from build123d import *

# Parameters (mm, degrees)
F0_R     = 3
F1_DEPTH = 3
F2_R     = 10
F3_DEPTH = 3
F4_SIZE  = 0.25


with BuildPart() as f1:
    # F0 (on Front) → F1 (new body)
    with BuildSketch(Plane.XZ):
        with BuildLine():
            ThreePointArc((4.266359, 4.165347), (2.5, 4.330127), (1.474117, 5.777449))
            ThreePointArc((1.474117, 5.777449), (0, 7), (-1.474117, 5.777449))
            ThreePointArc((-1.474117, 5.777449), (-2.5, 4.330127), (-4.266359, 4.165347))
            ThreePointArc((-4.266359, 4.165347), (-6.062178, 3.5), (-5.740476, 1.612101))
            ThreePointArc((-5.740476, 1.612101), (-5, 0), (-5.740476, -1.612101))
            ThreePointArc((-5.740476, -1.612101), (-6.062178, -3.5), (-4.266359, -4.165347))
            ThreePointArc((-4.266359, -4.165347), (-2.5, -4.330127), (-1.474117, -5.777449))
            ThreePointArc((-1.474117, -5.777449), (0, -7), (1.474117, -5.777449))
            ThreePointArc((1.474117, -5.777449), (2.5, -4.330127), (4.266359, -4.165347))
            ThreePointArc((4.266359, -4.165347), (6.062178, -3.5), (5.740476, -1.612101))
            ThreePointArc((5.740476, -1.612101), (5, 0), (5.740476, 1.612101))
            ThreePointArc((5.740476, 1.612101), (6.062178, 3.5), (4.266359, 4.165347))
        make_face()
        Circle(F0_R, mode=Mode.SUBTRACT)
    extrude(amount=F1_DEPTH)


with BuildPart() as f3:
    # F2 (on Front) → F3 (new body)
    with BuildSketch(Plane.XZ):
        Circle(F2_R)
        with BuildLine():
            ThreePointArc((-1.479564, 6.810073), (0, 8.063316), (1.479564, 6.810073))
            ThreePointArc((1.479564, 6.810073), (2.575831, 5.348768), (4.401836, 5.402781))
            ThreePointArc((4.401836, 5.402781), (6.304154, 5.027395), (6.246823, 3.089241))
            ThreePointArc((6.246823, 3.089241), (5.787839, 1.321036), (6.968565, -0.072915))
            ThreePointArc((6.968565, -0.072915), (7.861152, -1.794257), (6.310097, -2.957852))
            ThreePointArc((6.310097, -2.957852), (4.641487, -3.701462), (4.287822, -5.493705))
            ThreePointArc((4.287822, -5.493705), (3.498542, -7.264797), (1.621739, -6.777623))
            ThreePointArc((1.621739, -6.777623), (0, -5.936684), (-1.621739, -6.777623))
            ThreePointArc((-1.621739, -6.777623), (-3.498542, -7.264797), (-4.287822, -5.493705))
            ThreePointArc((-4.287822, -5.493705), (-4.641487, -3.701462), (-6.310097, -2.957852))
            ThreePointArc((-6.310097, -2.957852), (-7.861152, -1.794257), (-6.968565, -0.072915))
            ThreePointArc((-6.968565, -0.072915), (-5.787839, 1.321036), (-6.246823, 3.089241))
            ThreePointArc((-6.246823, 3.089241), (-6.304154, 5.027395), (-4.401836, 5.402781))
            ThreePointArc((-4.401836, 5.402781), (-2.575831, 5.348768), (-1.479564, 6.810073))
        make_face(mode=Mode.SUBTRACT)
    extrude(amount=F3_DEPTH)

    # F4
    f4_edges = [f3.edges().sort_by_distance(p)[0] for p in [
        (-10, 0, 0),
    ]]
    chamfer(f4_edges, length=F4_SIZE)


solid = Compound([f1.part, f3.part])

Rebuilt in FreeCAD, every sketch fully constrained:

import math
import FreeCAD as App
import Part
import Sketcher
from FreeCAD import Vector
Q = App.Units.Quantity


def edges_at(feature, points):
    """Names of the edges that pass closest to the given points."""
    edges = feature.Shape.Edges
    near = lambda p: min(range(len(edges)), key=lambda i: edges[i].distToShape(Part.Vertex(*p))[0])
    return sorted({f"Edge{near(p) + 1}" for p in points})

doc = App.newDocument("Part")
body = doc.addObject("PartDesign::Body", "Body")

# Sketch on XZ plane
sketch1 = body.newObject("Sketcher::SketchObject", "Sketch")
sketch1.AttachmentSupport = (doc.getObject("XZ_Plane"), [""])
sketch1.MapMode = "FlatFace"
sketch1.addGeometry([
    Part.ArcOfCircle(Part.Circle(Vector(3.6, 6.2, 0), Vector(0, 0, 1), 2.1), math.radians(-169), math.radians(-71)),  # 0
    Part.ArcOfCircle(Part.Circle(Vector(0, 5.5, 0), Vector(0, 0, 1), 1.5), math.radians(11), math.radians(169)),  # 1
    Part.ArcOfCircle(Part.Circle(Vector(-3.6, 6.2, 0), Vector(0, 0, 1), 2.1), math.radians(-109), math.radians(-11)),  # 2
    Part.ArcOfCircle(Part.Circle(Vector(-4.8, 2.7, 0), Vector(0, 0, 1), 1.5), math.radians(71), math.radians(229)),  # 3
    Part.ArcOfCircle(Part.Circle(Vector(-7.1, 0, 0), Vector(0, 0, 1), 2.1), math.radians(-49), math.radians(49)),  # 4
    Part.ArcOfCircle(Part.Circle(Vector(-4.8, -2.7, 0), Vector(0, 0, 1), 1.5), math.radians(131), math.radians(289)),  # 5
    Part.ArcOfCircle(Part.Circle(Vector(-3.6, -6.2, 0), Vector(0, 0, 1), 2.1), math.radians(11), math.radians(109)),  # 6
    Part.ArcOfCircle(Part.Circle(Vector(0, -5.5, 0), Vector(0, 0, 1), 1.5), math.radians(-169), math.radians(-11)),  # 7
    Part.ArcOfCircle(Part.Circle(Vector(3.6, -6.2, 0), Vector(0, 0, 1), 2.1), math.radians(71), math.radians(169)),  # 8
    Part.ArcOfCircle(Part.Circle(Vector(4.8, -2.7, 0), Vector(0, 0, 1), 1.5), math.radians(-109), math.radians(49)),  # 9
    Part.ArcOfCircle(Part.Circle(Vector(7.1, 0, 0), Vector(0, 0, 1), 2.1), math.radians(131), math.radians(229)),  # 10
    Part.ArcOfCircle(Part.Circle(Vector(4.8, 2.7, 0), Vector(0, 0, 1), 1.5), math.radians(-49), math.radians(109)),  # 11
    Part.Circle(Vector(0, 0, 0), Vector(0, 0, 1), 3),  # 12
], False)
sketch1.addConstraint([
    Sketcher.Constraint("Tangent", 0, 1, 1, 1),
    Sketcher.Constraint("Tangent", 1, 2, 2, 2),
    Sketcher.Constraint("Tangent", 2, 1, 3, 1),
    Sketcher.Constraint("Tangent", 3, 2, 4, 2),
    Sketcher.Constraint("Tangent", 4, 1, 5, 1),
    Sketcher.Constraint("Tangent", 5, 2, 6, 2),
    Sketcher.Constraint("Tangent", 6, 1, 7, 1),
    Sketcher.Constraint("Tangent", 7, 2, 8, 2),
    Sketcher.Constraint("Tangent", 8, 1, 9, 1),
    Sketcher.Constraint("Tangent", 9, 2, 10, 2),
    Sketcher.Constraint("Tangent", 10, 1, 11, 1),
    Sketcher.Constraint("Tangent", 11, 2, 0, 2),
    Sketcher.Constraint("Coincident", 12, 3, -1, 1),
    Sketcher.Constraint("Equal", 0, 2),
    Sketcher.Constraint("Equal", 1, 3),
    Sketcher.Constraint("Equal", 2, 4),
    Sketcher.Constraint("Equal", 3, 5),
    Sketcher.Constraint("Equal", 4, 6),
    Sketcher.Constraint("Equal", 5, 7),
    Sketcher.Constraint("Equal", 6, 8),
    Sketcher.Constraint("Equal", 7, 9),
    Sketcher.Constraint("Equal", 8, 10),
    Sketcher.Constraint("Equal", 9, 11),
    Sketcher.Constraint("Symmetric", 0, 3, 6, 3, -1, 1),
    Sketcher.Constraint("Symmetric", 2, 3, 8, 3, -1, 1),
    Sketcher.Constraint("Symmetric", 4, 3, 10, 3, -1, 1),
    Sketcher.Constraint("Symmetric", 0, 3, 2, 3, -2),
    Sketcher.Constraint("PointOnObject", 4, 3, -1),
    Sketcher.Constraint("Diameter", 12, Q("6 mm")),
    Sketcher.Constraint("Radius", 1, Q("1.5 mm")),
    Sketcher.Constraint("DistanceY", 7, 3, 1, 3, Q("11.000001 mm")),
    Sketcher.Constraint("DistanceY", 5, 3, 3, 3, Q("5.5 mm")),
    Sketcher.Constraint("Radius", 0, Q("2.125104 mm")),
    Sketcher.Constraint("DistanceY", -1, 1, 0, 3, Q("6.170521 mm")),
])
pad1 = body.newObject("PartDesign::Pad", "Pad")
pad1.Profile = sketch1
pad1.Length = 3
body2 = doc.addObject("PartDesign::Body", "Body001")

# Sketch on XZ plane
sketch2 = body2.newObject("Sketcher::SketchObject", "Sketch001")
sketch2.AttachmentSupport = (doc.getObject("XZ_Plane001"), [""])
sketch2.MapMode = "FlatFace"
sketch2.addGeometry([
    Part.Circle(Vector(0, 0, 0), Vector(0, 0, 1), 10),  # 0
    Part.ArcOfCircle(Part.Circle(Vector(-3.4, 7.1, 0), Vector(0, 0, 1), 2), math.radians(-119), math.radians(-9)),  # 1
    Part.ArcOfCircle(Part.Circle(Vector(0, 6.6, 0), Vector(0, 0, 1), 1.5), math.radians(9), math.radians(171)),  # 2
    Part.ArcOfCircle(Part.Circle(Vector(3.4, 7.1, 0), Vector(0, 0, 1), 2), math.radians(-171), math.radians(-61)),  # 3
    Part.ArcOfCircle(Part.Circle(Vector(5.1, 4.1, 0), Vector(0, 0, 1), 1.5), math.radians(-42), math.radians(119)),  # 4
    Part.ArcOfCircle(Part.Circle(Vector(7.7, 1.8, 0), Vector(0, 0, 1), 2), math.radians(138), math.radians(248)),  # 5
    Part.ArcOfCircle(Part.Circle(Vector(6.4, -1.5, 0), Vector(0, 0, 1), 1.5), math.radians(-93), math.radians(68)),  # 6
    Part.ArcOfCircle(Part.Circle(Vector(6.2, -4.9, 0), Vector(0, 0, 1), 2), math.radians(87), math.radians(196)),  # 7
    Part.ArcOfCircle(Part.Circle(Vector(2.8, -5.9, 0), Vector(0, 0, 1), 1.5), math.radians(-145), math.radians(16)),  # 8
    Part.ArcOfCircle(Part.Circle(Vector(0, -7.9, 0), Vector(0, 0, 1), 2), math.radians(35), math.radians(145)),  # 9
    Part.ArcOfCircle(Part.Circle(Vector(-2.8, -5.9, 0), Vector(0, 0, 1), 1.5), math.radians(164), math.radians(325)),  # 10
    Part.ArcOfCircle(Part.Circle(Vector(-6.2, -4.9, 0), Vector(0, 0, 1), 2), math.radians(-16), math.radians(93)),  # 11
    Part.ArcOfCircle(Part.Circle(Vector(-6.4, -1.5, 0), Vector(0, 0, 1), 1.5), math.radians(112), math.radians(273)),  # 12
    Part.ArcOfCircle(Part.Circle(Vector(-7.7, 1.8, 0), Vector(0, 0, 1), 2), math.radians(-68), math.radians(42)),  # 13
    Part.ArcOfCircle(Part.Circle(Vector(-5.1, 4.1, 0), Vector(0, 0, 1), 1.5), math.radians(61), math.radians(222)),  # 14
], False)
sketch2.addConstraint([
    Sketcher.Constraint("Tangent", 1, 2, 2, 2),
    Sketcher.Constraint("Tangent", 2, 1, 3, 1),
    Sketcher.Constraint("Tangent", 3, 2, 4, 2),
    Sketcher.Constraint("Tangent", 4, 1, 5, 1),
    Sketcher.Constraint("Tangent", 5, 2, 6, 2),
    Sketcher.Constraint("Tangent", 6, 1, 7, 1),
    Sketcher.Constraint("Tangent", 7, 2, 8, 2),
    Sketcher.Constraint("Tangent", 8, 1, 9, 1),
    Sketcher.Constraint("Tangent", 9, 2, 10, 2),
    Sketcher.Constraint("Tangent", 10, 1, 11, 1),
    Sketcher.Constraint("Tangent", 11, 2, 12, 2),
    Sketcher.Constraint("Tangent", 12, 1, 13, 1),
    Sketcher.Constraint("Tangent", 13, 2, 14, 2),
    Sketcher.Constraint("Tangent", 14, 1, 1, 1),
    Sketcher.Constraint("Coincident", 0, 3, -1, 1),
    Sketcher.Constraint("Equal", 1, 3),
    Sketcher.Constraint("Equal", 2, 4),
    Sketcher.Constraint("Equal", 4, 6),
    Sketcher.Constraint("Equal", 5, 7),
    Sketcher.Constraint("Equal", 6, 8),
    Sketcher.Constraint("Equal", 7, 9),
    Sketcher.Constraint("Equal", 8, 10),
    Sketcher.Constraint("Equal", 9, 11),
    Sketcher.Constraint("Equal", 10, 12),
    Sketcher.Constraint("Equal", 11, 13),
    Sketcher.Constraint("Equal", 12, 14),
    Sketcher.Constraint("Symmetric", 1, 3, 3, 3, -2),
    Sketcher.Constraint("Symmetric", 8, 3, 10, 3, -2),
    Sketcher.Constraint("Symmetric", 6, 3, 12, 3, -2),
    Sketcher.Constraint("Horizontal", 5, 3, 13, 3),
    Sketcher.Constraint("Diameter", 0, Q("20 mm")),
    Sketcher.Constraint("Radius", 2, Q("1.499999 mm")),
    Sketcher.Constraint("Radius", 1, Q("1.984221 mm")),
    Sketcher.Constraint("Radius", 5, Q("1.984219 mm")),
    Sketcher.Constraint("DistanceY", 9, 3, 7, 3, Q("2.982301 mm")),
    Sketcher.Constraint("DistanceY", 9, 3, 7, 2, Q("2.427199 mm")),
    Sketcher.Constraint("DistanceX", 1, 3, -1, 1, Q("3.436752 mm")),
    Sketcher.Constraint("DistanceY", -1, 1, 1, 3, Q("7.136489 mm")),
    Sketcher.Constraint("DistanceY", -1, 1, 4, 3, Q("4.09216 mm")),
    Sketcher.Constraint("DistanceX", -1, 1, 5, 3, Q("7.722309 mm")),
    Sketcher.Constraint("DistanceX", -1, 1, 6, 3, Q("6.39876 mm")),
])
pad2 = body2.newObject("PartDesign::Pad", "Pad001")
pad2.Profile = sketch2
pad2.Length = 3
doc.recompute()

chamfer = body2.newObject("PartDesign::Chamfer", "Chamfer")
chamfer.Base = (pad2, edges_at(pad2, [(-10, 0, 0)]))
chamfer.Size = 0.25

doc.recompute()
